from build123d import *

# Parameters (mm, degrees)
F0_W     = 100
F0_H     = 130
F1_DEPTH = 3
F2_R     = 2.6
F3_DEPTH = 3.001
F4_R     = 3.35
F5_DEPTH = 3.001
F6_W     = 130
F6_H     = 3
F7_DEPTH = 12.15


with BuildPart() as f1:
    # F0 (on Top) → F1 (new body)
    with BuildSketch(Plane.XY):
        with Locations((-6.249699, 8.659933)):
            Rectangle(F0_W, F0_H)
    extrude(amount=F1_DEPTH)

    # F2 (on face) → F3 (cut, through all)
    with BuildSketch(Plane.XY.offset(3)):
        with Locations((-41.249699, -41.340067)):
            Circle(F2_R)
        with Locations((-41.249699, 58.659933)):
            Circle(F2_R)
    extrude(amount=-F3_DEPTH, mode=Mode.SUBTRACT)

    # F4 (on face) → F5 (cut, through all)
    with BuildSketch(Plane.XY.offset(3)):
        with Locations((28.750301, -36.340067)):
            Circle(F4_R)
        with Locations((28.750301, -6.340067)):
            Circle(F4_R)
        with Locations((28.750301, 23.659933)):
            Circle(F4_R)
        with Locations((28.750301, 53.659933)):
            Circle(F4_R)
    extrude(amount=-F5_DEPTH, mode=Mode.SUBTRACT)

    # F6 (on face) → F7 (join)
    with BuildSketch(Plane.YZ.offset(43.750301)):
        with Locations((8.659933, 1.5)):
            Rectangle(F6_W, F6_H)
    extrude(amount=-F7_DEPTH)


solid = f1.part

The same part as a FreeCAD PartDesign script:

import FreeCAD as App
import Part
import Sketcher
from FreeCAD import Vector
Q = App.Units.Quantity


def add_polygon(sketch, points):
    """Adds a closed chain of lines whose ends are joined by coincident constraints."""
    first, n = sketch.GeometryCount, len(points)
    for a, b in zip(points, points[1:] + points[:1]):
        sketch.addGeometry(Part.LineSegment(App.Vector(*a, 0), App.Vector(*b, 0)), False)
    for i in range(n):
        sketch.addConstraint(Sketcher.Constraint("Coincident", first + i, 2, first + (i + 1) % n, 1))

doc = App.newDocument("Part")
body = doc.addObject("PartDesign::Body", "Body")

# Sketch on XY plane
sketch1 = body.newObject("Sketcher::SketchObject", "Sketch")
sketch1.AttachmentSupport = (doc.getObject("XY_Plane"), [""])
sketch1.MapMode = "FlatFace"
add_polygon(sketch1, [(-56, 74), (-56, -56), (44, -56), (44, 74)])  # lines 0-3
sketch1.addConstraint([
    Sketcher.Constraint("Vertical", 0),
    Sketcher.Constraint("Horizontal", 1),
    Sketcher.Constraint("Vertical", 2),
    Sketcher.Constraint("Horizontal", 3),
    Sketcher.Constraint("DistanceX", 1, 1, 1, 2, Q("100 mm")),
    Sketcher.Constraint("DistanceY", 0, 2, 0, 1, Q("130 mm")),
    Sketcher.Constraint("DistanceX", 0, 2, -1, 1, Q("56.249699 mm")),
    Sketcher.Constraint("DistanceY", 0, 2, -1, 1, Q("56.340067 mm")),
])
pad1 = body.newObject("PartDesign::Pad", "Pad")
pad1.Profile = sketch1
pad1.Length = 3

# Sketch on XY plane
sketch2 = body.newObject("Sketcher::SketchObject", "Sketch001")
sketch2.AttachmentSupport = (doc.getObject("XY_Plane"), [""])
sketch2.MapMode = "FlatFace"
sketch2.AttachmentOffset = App.Placement(Vector(0, 0, 3), App.Rotation())
sketch2.addGeometry([
    Part.Circle(Vector(-41.2, -41.3, 0), Vector(0, 0, 1), 2.6),
    Part.Circle(Vector(-41.2, 58.7, 0), Vector(0, 0, 1), 2.6),
], False)
sketch2.addConstraint([
    Sketcher.Constraint("Equal", 0, 1),
    Sketcher.Constraint("Vertical", 0, 3, 1, 3),
    Sketcher.Constraint("Diameter", 0, Q("5.2 mm")),
    Sketcher.Constraint("DistanceY", 0, 3, 1, 3, Q("100 mm")),
    Sketcher.Constraint("DistanceX", 0, 3, -1, 1, Q("41.249699 mm")),
    Sketcher.Constraint("DistanceY", 0, 3, -1, 1, Q("41.340067 mm")),
])
pocket1 = body.newObject("PartDesign::Pocket", "Pocket")
pocket1.Profile = sketch2
pocket1.Type = "ThroughAll"

# Sketch on XY plane
sketch3 = body.newObject("Sketcher::SketchObject", "Sketch002")
sketch3.AttachmentSupport = (doc.getObject("XY_Plane"), [""])
sketch3.MapMode = "FlatFace"
sketch3.AttachmentOffset = App.Placement(Vector(0, 0, 3), App.Rotation())
sketch3.addGeometry([
    Part.Circle(Vector(28.8, -36.3, 0), Vector(0, 0, 1), 3.4),
    Part.Circle(Vector(28.8, -6.3, 0), Vector(0, 0, 1), 3.4),
    Part.Circle(Vector(28.8, 23.7, 0), Vector(0, 0, 1), 3.4),
    Part.Circle(Vector(28.8, 53.7, 0), Vector(0, 0, 1), 3.4),
], False)
sketch3.addConstraint([
    Sketcher.Constraint("Equal", 0, 1),
    Sketcher.Constraint("Equal", 1, 2),
    Sketcher.Constraint("Equal", 2, 3),
    Sketcher.Constraint("Vertical", 0, 3, 1, 3),
    Sketcher.Constraint("Vertical", 1, 3, 2, 3),
    Sketcher.Constraint("Vertical", 2, 3, 3, 3),
    Sketcher.Constraint("Diameter", 0, Q("6.7 mm")),
    Sketcher.Constraint("DistanceY", 0, 3, 1, 3, Q("30 mm")),
    Sketcher.Constraint("DistanceY", 1, 3, 2, 3, Q("30 mm")),
    Sketcher.Constraint("DistanceY", 2, 3, 3, 3, Q("30 mm")),
    Sketcher.Constraint("DistanceX", -1, 1, 0, 3, Q("28.750301 mm")),
    Sketcher.Constraint("DistanceY", 0, 3, -1, 1, Q("36.340067 mm")),
])
pocket2 = body.newObject("PartDesign::Pocket", "Pocket001")
pocket2.Profile = sketch3
pocket2.Type = "ThroughAll"

# Sketch on YZ plane
sketch4 = body.newObject("Sketcher::SketchObject", "Sketch003")
sketch4.AttachmentSupport = (doc.getObject("YZ_Plane"), [""])
sketch4.MapMode = "FlatFace"
sketch4.AttachmentOffset = App.Placement(Vector(0, 0, 43.750301), App.Rotation())
add_polygon(sketch4, [(-56.3, 3), (-56.3, 0), (73.7, 0), (73.7, 3)])  # lines 0-3
sketch4.addConstraint([
    Sketcher.Constraint("Vertical", 0),
    Sketcher.Constraint("Horizontal", 1),
    Sketcher.Constraint("Vertical", 2),
    Sketcher.Constraint("Horizontal", 3),
    Sketcher.Constraint("PointOnObject", 0, 2, -1),
    Sketcher.Constraint("DistanceX", 1, 1, 1, 2, Q("130 mm")),
    Sketcher.Constraint("DistanceY", 0, 2, 0, 1, Q("3 mm")),
    Sketcher.Constraint("DistanceX", 0, 2, -1, 1, Q("56.340067 mm")),
])
pad2 = body.newObject("PartDesign::Pad", "Pad001")
pad2.Profile = sketch4
pad2.Length = 12.15
pad2.Reversed = True

doc.recompute()
